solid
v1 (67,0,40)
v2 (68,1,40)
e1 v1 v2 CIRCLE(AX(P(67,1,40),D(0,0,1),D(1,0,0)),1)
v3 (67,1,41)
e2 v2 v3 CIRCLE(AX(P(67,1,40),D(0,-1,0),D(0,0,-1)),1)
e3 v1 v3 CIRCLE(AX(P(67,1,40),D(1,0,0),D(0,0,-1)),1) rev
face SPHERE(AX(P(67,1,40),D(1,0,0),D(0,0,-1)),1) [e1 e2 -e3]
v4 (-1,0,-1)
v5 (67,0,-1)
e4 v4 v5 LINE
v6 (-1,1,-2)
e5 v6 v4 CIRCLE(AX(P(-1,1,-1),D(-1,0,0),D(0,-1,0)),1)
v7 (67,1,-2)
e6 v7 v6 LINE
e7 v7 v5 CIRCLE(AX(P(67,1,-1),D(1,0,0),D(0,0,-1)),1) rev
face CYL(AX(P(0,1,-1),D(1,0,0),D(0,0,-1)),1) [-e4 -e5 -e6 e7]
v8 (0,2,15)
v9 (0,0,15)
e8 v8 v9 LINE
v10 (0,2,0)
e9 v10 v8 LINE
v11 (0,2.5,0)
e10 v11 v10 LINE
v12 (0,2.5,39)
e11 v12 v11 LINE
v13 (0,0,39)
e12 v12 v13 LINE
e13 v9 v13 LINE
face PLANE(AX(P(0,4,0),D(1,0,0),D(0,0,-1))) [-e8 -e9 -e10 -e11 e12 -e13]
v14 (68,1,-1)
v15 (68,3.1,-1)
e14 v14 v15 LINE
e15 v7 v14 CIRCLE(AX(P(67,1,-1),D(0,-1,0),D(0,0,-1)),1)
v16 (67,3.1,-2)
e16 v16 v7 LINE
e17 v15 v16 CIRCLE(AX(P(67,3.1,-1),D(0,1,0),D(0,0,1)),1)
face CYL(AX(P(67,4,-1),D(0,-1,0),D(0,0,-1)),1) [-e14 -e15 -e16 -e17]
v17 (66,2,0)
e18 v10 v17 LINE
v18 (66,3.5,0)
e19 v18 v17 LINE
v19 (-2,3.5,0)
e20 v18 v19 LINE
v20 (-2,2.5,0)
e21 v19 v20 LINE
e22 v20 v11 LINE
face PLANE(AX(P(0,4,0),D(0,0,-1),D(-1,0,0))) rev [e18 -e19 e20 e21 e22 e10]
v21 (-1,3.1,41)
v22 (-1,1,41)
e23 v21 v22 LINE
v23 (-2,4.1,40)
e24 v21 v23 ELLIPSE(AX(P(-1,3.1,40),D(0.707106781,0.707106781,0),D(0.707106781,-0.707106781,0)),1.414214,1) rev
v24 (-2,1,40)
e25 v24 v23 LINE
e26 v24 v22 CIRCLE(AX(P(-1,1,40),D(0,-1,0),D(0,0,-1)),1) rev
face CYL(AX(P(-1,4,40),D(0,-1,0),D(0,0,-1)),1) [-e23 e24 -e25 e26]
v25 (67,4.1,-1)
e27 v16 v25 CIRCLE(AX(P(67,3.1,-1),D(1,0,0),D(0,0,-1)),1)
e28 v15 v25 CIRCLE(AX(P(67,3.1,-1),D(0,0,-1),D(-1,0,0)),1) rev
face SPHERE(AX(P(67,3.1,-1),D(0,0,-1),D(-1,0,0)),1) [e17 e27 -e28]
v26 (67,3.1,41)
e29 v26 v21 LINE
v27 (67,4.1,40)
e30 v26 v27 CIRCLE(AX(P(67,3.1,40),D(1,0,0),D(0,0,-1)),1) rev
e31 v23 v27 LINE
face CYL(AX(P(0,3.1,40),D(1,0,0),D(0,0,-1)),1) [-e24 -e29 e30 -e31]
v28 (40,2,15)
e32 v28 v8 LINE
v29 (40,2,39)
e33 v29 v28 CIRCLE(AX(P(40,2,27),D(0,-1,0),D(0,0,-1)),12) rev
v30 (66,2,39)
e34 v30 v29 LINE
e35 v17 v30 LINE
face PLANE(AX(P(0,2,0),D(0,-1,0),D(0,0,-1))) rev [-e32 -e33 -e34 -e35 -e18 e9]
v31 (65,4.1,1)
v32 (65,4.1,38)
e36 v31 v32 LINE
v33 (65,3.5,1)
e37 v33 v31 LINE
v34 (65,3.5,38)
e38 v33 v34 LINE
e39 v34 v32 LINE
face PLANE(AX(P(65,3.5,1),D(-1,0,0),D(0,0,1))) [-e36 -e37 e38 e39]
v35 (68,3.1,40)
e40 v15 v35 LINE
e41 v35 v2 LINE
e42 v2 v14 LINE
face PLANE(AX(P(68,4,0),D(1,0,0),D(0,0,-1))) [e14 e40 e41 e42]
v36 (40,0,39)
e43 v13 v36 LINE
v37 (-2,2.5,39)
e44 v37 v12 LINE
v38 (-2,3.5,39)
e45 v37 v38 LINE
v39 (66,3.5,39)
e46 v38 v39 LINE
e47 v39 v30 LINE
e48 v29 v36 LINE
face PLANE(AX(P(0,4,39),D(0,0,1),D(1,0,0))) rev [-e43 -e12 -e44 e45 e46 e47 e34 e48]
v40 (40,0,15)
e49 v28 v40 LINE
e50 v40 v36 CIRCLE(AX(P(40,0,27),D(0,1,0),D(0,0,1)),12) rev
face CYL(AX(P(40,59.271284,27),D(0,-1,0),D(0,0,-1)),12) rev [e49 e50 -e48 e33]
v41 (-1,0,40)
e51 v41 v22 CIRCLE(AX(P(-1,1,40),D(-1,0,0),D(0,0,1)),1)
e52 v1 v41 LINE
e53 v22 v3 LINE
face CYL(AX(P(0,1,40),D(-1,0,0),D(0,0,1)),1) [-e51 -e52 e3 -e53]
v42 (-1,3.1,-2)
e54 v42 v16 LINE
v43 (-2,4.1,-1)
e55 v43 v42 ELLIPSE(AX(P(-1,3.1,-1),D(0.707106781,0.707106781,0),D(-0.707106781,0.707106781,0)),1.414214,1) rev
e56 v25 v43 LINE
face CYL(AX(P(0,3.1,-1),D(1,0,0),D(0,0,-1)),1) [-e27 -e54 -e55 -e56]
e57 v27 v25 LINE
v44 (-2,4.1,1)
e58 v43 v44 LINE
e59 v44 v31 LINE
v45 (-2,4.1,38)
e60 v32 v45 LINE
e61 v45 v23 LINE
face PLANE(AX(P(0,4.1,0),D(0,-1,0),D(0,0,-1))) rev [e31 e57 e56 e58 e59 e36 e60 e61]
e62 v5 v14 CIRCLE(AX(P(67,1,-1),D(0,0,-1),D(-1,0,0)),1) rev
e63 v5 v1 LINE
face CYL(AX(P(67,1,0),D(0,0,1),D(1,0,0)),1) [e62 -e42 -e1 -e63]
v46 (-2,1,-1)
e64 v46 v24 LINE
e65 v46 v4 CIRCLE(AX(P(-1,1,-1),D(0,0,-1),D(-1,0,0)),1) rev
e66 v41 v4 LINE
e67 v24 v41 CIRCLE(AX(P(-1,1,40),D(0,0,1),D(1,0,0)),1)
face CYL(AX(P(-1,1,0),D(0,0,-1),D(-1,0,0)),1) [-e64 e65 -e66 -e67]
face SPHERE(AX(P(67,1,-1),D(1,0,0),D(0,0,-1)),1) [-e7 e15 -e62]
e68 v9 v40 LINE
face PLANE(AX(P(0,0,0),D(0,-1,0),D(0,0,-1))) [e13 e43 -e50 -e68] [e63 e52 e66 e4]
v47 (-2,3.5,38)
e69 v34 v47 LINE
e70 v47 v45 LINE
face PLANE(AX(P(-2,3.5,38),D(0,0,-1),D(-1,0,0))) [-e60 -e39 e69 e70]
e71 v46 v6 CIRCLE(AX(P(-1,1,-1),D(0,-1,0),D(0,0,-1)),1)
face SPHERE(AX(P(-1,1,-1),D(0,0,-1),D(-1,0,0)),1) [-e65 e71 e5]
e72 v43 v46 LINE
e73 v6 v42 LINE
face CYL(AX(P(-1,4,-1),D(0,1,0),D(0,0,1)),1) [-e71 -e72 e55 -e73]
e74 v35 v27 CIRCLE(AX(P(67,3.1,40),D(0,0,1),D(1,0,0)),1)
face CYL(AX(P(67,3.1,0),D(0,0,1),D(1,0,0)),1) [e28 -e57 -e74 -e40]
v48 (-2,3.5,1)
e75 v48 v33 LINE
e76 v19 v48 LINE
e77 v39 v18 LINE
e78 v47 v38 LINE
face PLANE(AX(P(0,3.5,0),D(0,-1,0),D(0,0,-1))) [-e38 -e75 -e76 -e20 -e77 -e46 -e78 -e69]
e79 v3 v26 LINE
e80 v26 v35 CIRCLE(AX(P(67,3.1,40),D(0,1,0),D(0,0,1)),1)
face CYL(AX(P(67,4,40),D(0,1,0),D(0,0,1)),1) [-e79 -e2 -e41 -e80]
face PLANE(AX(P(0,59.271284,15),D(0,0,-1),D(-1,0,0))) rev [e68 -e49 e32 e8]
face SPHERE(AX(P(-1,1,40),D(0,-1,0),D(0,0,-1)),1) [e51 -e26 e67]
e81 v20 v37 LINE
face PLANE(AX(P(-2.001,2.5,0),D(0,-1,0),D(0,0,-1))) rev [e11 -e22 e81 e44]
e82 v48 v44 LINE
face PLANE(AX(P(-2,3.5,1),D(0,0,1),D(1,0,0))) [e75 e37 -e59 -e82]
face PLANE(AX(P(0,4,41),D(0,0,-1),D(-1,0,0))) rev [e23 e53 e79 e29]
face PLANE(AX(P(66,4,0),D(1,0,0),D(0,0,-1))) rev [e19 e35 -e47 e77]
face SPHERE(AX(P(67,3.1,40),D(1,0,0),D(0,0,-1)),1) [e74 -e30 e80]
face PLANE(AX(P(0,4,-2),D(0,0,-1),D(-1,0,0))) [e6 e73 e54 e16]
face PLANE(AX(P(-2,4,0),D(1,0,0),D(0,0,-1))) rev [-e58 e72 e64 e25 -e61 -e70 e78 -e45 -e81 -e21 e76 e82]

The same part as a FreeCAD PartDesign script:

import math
import FreeCAD as App
import Part
import Sketcher
from FreeCAD import Vector
Q = App.Units.Quantity


def edges_at(feature, points):
    """Names of the edges that pass closest to the given points."""
    edges = feature.Shape.Edges
    near = lambda p: min(range(len(edges)), key=lambda i: edges[i].distToShape(Part.Vertex(*p))[0])
    return sorted({f"Edge{near(p) + 1}" for p in points})

doc = App.newDocument("Part")
body = doc.addObject("PartDesign::Body", "Body")

# Sketch on XZ plane
sketch1 = doc.addObject("Sketcher::SketchObject", "Sketch")
body.addObject(sketch1)
sketch1.AttachmentSupport = (doc.XZ_Plane, [""])
sketch1.MapMode = "FlatFace"
sketch1.addGeometry(Part.LineSegment(Vector(66, 0, 0), Vector(0, 0, 0)), False)
sketch1.addGeometry(Part.LineSegment(Vector(0, 0, 0), Vector(0, 39, 0)), False)
sketch1.addGeometry(Part.LineSegment(Vector(0, 39, 0), Vector(66, 39, 0)), False)
sketch1.addGeometry(Part.LineSegment(Vector(66, 39, 0), Vector(66, 0, 0)), False)
sketch1.addConstraint(Sketcher.Constraint("Coincident", 0, 2, 1, 1))
sketch1.addConstraint(Sketcher.Constraint("Coincident", 1, 2, 2, 1))
sketch1.addConstraint(Sketcher.Constraint("Coincident", 2, 2, 3, 1))
sketch1.addConstraint(Sketcher.Constraint("Coincident", 3, 2, 0, 1))
sketch1.addConstraint(Sketcher.Constraint("Horizontal", 0))
sketch1.addConstraint(Sketcher.Constraint("Vertical", 1))
sketch1.addConstraint(Sketcher.Constraint("Horizontal", 2))
sketch1.addConstraint(Sketcher.Constraint("Vertical", 3))
sketch1.addConstraint(Sketcher.Constraint("Coincident", 0, 2, -1, 1))
sketch1.addConstraint(Sketcher.Constraint("DistanceX", 0, 2, 0, 1, Q("66 mm")))
sketch1.addConstraint(Sketcher.Constraint("DistanceY", 1, 1, 1, 2, Q("39 mm")))
pad1 = doc.addObject("PartDesign::Pad", "Pad")
body.addObject(pad1)
pad1.Profile = sketch1
pad1.Length = 2
pad1.Reversed = True

# Sketch on XZ plane
sketch2 = doc.addObject("Sketcher::SketchObject", "Sketch001")
body.addObject(sketch2)
sketch2.AttachmentSupport = (doc.XZ_Plane, [""])
sketch2.MapMode = "FlatFace"
sketch2.addGeometry(Part.LineSegment(Vector(-2, -2, 0), Vector(-2, 41, 0)), False)
sketch2.addGeometry(Part.LineSegment(Vector(-2, 41, 0), Vector(68, 41, 0)), False)
sketch2.addGeometry(Part.LineSegment(Vector(68, 41, 0), Vector(68, -2, 0)), False)
sketch2.addGeometry(Part.LineSegment(Vector(68, -2, 0), Vector(-2, -2, 0)), False)
sketch2.addGeometry(Part.LineSegment(Vector(0, 39, 0), Vector(0, 0, 0)), False)
sketch2.addGeometry(Part.LineSegment(Vector(0, 0, 0), Vector(66, 0, 0)), False)
sketch2.addGeometry(Part.LineSegment(Vector(66, 0, 0), Vector(66, 39, 0)), False)
sketch2.addGeometry(Part.LineSegment(Vector(66, 39, 0), Vector(0, 39, 0)), False)
sketch2.addConstraint(Sketcher.Constraint("Coincident", 0, 2, 1, 1))
sketch2.addConstraint(Sketcher.Constraint("Coincident", 1, 2, 2, 1))
sketch2.addConstraint(Sketcher.Constraint("Coincident", 2, 2, 3, 1))
sketch2.addConstraint(Sketcher.Constraint("Coincident", 3, 2, 0, 1))
sketch2.addConstraint(Sketcher.Constraint("Coincident", 4, 2, 5, 1))
sketch2.addConstraint(Sketcher.Constraint("Coincident", 5, 2, 6, 1))
sketch2.addConstraint(Sketcher.Constraint("Coincident", 6, 2, 7, 1))
sketch2.addConstraint(Sketcher.Constraint("Coincident", 7, 2, 4, 1))
sketch2.addConstraint(Sketcher.Constraint("Vertical", 0))
sketch2.addConstraint(Sketcher.Constraint("Horizontal", 1))
sketch2.addConstraint(Sketcher.Constraint("Vertical", 2))
sketch2.addConstraint(Sketcher.Constraint("Horizontal", 3))
sketch2.addConstraint(Sketcher.Constraint("Vertical", 4))
sketch2.addConstraint(Sketcher.Constraint("Horizontal", 5))
sketch2.addConstraint(Sketcher.Constraint("Vertical", 6))
sketch2.addConstraint(Sketcher.Constraint("Horizontal", 7))
sketch2.addConstraint(Sketcher.Constraint("Coincident", 4, 2, -1, 1))
sketch2.addConstraint(Sketcher.Constraint("DistanceX", 1, 1, 1, 2, Q("70 mm")))
sketch2.addConstraint(Sketcher.Constraint("DistanceX", 5, 1, 5, 2, Q("66 mm")))
sketch2.addConstraint(Sketcher.Constraint("DistanceY", 0, 1, 0, 2, Q("43 mm")))
sketch2.addConstraint(Sketcher.Constraint("DistanceY", 4, 2, 4, 1, Q("39 mm")))
sketch2.addConstraint(Sketcher.Constraint("DistanceX", 0, 2, -1, 1, Q("2 mm")))
sketch2.addConstraint(Sketcher.Constraint("DistanceY", -1, 1, 0, 2, Q("41 mm")))
pad2 = doc.addObject("PartDesign::Pad", "Pad001")
body.addObject(pad2)
pad2.Profile = sketch2
pad2.Length = 4
pad2.Reversed = True

# Sketch on XZ plane
sketch3 = doc.addObject("Sketcher::SketchObject", "Sketch002")
body.addObject(sketch3)
sketch3.AttachmentSupport = (doc.XZ_Plane, [""])
sketch3.MapMode = "FlatFace"
sketch3.addGeometry(Part.LineSegment(Vector(0, 15, 0), Vector(0, 39, 0)), False)
sketch3.addGeometry(Part.LineSegment(Vector(0, 39, 0), Vector(40, 39, 0)), False)
sketch3.addGeometry(Part.ArcOfCircle(Part.Circle(Vector(40, 27, 0), Vector(0, 0, 1), 12), math.radians(-90), math.radians(90)), False)
sketch3.addGeometry(Part.LineSegment(Vector(40, 15, 0), Vector(0, 15, 0)), False)
sketch3.addConstraint(Sketcher.Constraint("Coincident", 0, 2, 1, 1))
sketch3.addConstraint(Sketcher.Constraint("Tangent", 1, 2, 2, 2))
sketch3.addConstraint(Sketcher.Constraint("Tangent", 2, 1, 3, 1))
sketch3.addConstraint(Sketcher.Constraint("Coincident", 3, 2, 0, 1))
sketch3.addConstraint(Sketcher.Constraint("Vertical", 0))
sketch3.addConstraint(Sketcher.Constraint("Horizontal", 1))
sketch3.addConstraint(Sketcher.Constraint("Horizontal", 3))
sketch3.addConstraint(Sketcher.Constraint("PointOnObject", 0, 2, -2))
sketch3.addConstraint(Sketcher.Constraint("Radius", 2, Q("12 mm")))
sketch3.addConstraint(Sketcher.Constraint("DistanceX", 1, 1, 1, 2, Q("40 mm")))
sketch3.addConstraint(Sketcher.Constraint("DistanceY", -1, 1, 2, 3, Q("27 mm")))
pocket1 = doc.addObject("PartDesign::Pocket", "Pocket")
body.addObject(pocket1)
pocket1.Profile = sketch3
pocket1.Length = 2

# Sketch on YZ plane
sketch4 = doc.addObject("Sketcher::SketchObject", "Sketch003")
body.addObject(sketch4)
sketch4.AttachmentSupport = (doc.YZ_Plane, [""])
sketch4.MapMode = "FlatFace"
sketch4.addGeometry(Part.LineSegment(Vector(4, 39, 0), Vector(2.5, 39, 0)), False)
sketch4.addGeometry(Part.LineSegment(Vector(2.5, 39, 0), Vector(2.5, 0, 0)), False)
sketch4.addGeometry(Part.LineSegment(Vector(2.5, 0, 0), Vector(4, 0, 0)), False)
sketch4.addGeometry(Part.LineSegment(Vector(4, 0, 0), Vector(4, 39, 0)), False)
sketch4.addConstraint(Sketcher.Constraint("Coincident", 0, 2, 1, 1))
sketch4.addConstraint(Sketcher.Constraint("Coincident", 1, 2, 2, 1))
sketch4.addConstraint(Sketcher.Constraint("Coincident", 2, 2, 3, 1))
sketch4.addConstraint(Sketcher.Constraint("Coincident", 3, 2, 0, 1))
sketch4.addConstraint(Sketcher.Constraint("Horizontal", 0))
sketch4.addConstraint(Sketcher.Constraint("Vertical", 1))
sketch4.addConstraint(Sketcher.Constraint("Horizontal", 2))
sketch4.addConstraint(Sketcher.Constraint("Vertical", 3))
sketch4.addConstraint(Sketcher.Constraint("PointOnObject", 1, 2, -1))
sketch4.addConstraint(Sketcher.Constraint("DistanceY", 1, 2, 1, 1, Q("39 mm")))
sketch4.addConstraint(Sketcher.Constraint("DistanceX", 0, 2, 0, 1, Q("1.5 mm")))
sketch4.addConstraint(Sketcher.Constraint("DistanceX", -1, 1, 2, 2, Q("4 mm")))
pocket2 = doc.addObject("PartDesign::Pocket", "Pocket001")
body.addObject(pocket2)
pocket2.Profile = sketch4
pocket2.Type = "UpToFirst"

# Sketch on XZ plane
sketch5 = doc.addObject("Sketcher::SketchObject", "Sketch004")
body.addObject(sketch5)
sketch5.AttachmentSupport = (doc.XZ_Plane, [""])
sketch5.MapMode = "FlatFace"
sketch5.AttachmentOffset = App.Placement(Vector(0, 0, -3.5), App.Rotation())
sketch5.addGeometry(Part.LineSegment(Vector(-2, 41, 0), Vector(68, 41, 0)), False)
sketch5.addGeometry(Part.LineSegment(Vector(68, 41, 0), Vector(68, -2, 0)), False)
sketch5.addGeometry(Part.LineSegment(Vector(68, -2, 0), Vector(-2, -2, 0)), False)
sketch5.addGeometry(Part.LineSegment(Vector(-2, -2, 0), Vector(-2, 1, 0)), False)
sketch5.addGeometry(Part.LineSegment(Vector(-2, 1, 0), Vector(65, 1, 0)), False)
sketch5.addGeometry(Part.LineSegment(Vector(65, 1, 0), Vector(65, 38, 0)), False)
sketch5.addGeometry(Part.LineSegment(Vector(65, 38, 0), Vector(-2, 38, 0)), False)
sketch5.addGeometry(Part.LineSegment(Vector(-2, 38, 0), Vector(-2, 41, 0)), False)
sketch5.addConstraint(Sketcher.Constraint("Coincident", 0, 2, 1, 1))
sketch5.addConstraint(Sketcher.Constraint("Coincident", 1, 2, 2, 1))
sketch5.addConstraint(Sketcher.Constraint("Coincident", 2, 2, 3, 1))
sketch5.addConstraint(Sketcher.Constraint("Coincident", 3, 2, 4, 1))
sketch5.addConstraint(Sketcher.Constraint("Coincident", 4, 2, 5, 1))
sketch5.addConstraint(Sketcher.Constraint("Coincident", 5, 2, 6, 1))
sketch5.addConstraint(Sketcher.Constraint("Coincident", 6, 2, 7, 1))
sketch5.addConstraint(Sketcher.Constraint("Coincident", 7, 2, 0, 1))
sketch5.addConstraint(Sketcher.Constraint("Horizontal", 0))
sketch5.addConstraint(Sketcher.Constraint("Vertical", 1))
sketch5.addConstraint(Sketcher.Constraint("Horizontal", 2))
sketch5.addConstraint(Sketcher.Constraint("Vertical", 3))
sketch5.addConstraint(Sketcher.Constraint("Horizontal", 4))
sketch5.addConstraint(Sketcher.Constraint("Vertical", 5))
sketch5.addConstraint(Sketcher.Constraint("Horizontal", 6))
sketch5.addConstraint(Sketcher.Constraint("Vertical", 7))
sketch5.addConstraint(Sketcher.Constraint("Vertical", 3, 2, 6, 2))
sketch5.addConstraint(Sketcher.Constraint("Equal", 3, 7))
sketch5.addConstraint(Sketcher.Constraint("DistanceX", 0, 1, 0, 2, Q("70 mm")))
sketch5.addConstraint(Sketcher.Constraint("DistanceX", 4, 1, 4, 2, Q("67 mm")))
sketch5.addConstraint(Sketcher.Constraint("DistanceY", 1, 2, 1, 1, Q("43 mm")))
sketch5.addConstraint(Sketcher.Constraint("DistanceY", 3, 1, 3, 2, Q("3 mm")))
sketch5.addConstraint(Sketcher.Constraint("DistanceX", -1, 1, 0, 2, Q("68 mm")))
sketch5.addConstraint(Sketcher.Constraint("DistanceY", -1, 1, 0, 2, Q("41 mm")))
pad3 = doc.addObject("PartDesign::Pad", "Pad002")
body.addObject(pad3)
pad3.Profile = sketch5
pad3.Length = 0.6
pad3.Reversed = True
doc.recompute()

fillet = doc.addObject("PartDesign::Fillet", "Fillet")
body.addObject(fillet)
fillet.Base = (pad3, edges_at(pad3, [
    (68, 2.05, -2),
    (-2, 0, 19.5),
    (-2, 2.05, -2),
    (33, 0, 41),
    (-2, 2.05, 41),
    (68, 2.05, 41),
    (33, 0, -2),
    (68, 0, 19.5),
    (33, 4.1, 41),
    (68, 4.1, 19.5),
    (33, 4.1, -2),
]))
fillet.Radius = 1

doc.recompute()
